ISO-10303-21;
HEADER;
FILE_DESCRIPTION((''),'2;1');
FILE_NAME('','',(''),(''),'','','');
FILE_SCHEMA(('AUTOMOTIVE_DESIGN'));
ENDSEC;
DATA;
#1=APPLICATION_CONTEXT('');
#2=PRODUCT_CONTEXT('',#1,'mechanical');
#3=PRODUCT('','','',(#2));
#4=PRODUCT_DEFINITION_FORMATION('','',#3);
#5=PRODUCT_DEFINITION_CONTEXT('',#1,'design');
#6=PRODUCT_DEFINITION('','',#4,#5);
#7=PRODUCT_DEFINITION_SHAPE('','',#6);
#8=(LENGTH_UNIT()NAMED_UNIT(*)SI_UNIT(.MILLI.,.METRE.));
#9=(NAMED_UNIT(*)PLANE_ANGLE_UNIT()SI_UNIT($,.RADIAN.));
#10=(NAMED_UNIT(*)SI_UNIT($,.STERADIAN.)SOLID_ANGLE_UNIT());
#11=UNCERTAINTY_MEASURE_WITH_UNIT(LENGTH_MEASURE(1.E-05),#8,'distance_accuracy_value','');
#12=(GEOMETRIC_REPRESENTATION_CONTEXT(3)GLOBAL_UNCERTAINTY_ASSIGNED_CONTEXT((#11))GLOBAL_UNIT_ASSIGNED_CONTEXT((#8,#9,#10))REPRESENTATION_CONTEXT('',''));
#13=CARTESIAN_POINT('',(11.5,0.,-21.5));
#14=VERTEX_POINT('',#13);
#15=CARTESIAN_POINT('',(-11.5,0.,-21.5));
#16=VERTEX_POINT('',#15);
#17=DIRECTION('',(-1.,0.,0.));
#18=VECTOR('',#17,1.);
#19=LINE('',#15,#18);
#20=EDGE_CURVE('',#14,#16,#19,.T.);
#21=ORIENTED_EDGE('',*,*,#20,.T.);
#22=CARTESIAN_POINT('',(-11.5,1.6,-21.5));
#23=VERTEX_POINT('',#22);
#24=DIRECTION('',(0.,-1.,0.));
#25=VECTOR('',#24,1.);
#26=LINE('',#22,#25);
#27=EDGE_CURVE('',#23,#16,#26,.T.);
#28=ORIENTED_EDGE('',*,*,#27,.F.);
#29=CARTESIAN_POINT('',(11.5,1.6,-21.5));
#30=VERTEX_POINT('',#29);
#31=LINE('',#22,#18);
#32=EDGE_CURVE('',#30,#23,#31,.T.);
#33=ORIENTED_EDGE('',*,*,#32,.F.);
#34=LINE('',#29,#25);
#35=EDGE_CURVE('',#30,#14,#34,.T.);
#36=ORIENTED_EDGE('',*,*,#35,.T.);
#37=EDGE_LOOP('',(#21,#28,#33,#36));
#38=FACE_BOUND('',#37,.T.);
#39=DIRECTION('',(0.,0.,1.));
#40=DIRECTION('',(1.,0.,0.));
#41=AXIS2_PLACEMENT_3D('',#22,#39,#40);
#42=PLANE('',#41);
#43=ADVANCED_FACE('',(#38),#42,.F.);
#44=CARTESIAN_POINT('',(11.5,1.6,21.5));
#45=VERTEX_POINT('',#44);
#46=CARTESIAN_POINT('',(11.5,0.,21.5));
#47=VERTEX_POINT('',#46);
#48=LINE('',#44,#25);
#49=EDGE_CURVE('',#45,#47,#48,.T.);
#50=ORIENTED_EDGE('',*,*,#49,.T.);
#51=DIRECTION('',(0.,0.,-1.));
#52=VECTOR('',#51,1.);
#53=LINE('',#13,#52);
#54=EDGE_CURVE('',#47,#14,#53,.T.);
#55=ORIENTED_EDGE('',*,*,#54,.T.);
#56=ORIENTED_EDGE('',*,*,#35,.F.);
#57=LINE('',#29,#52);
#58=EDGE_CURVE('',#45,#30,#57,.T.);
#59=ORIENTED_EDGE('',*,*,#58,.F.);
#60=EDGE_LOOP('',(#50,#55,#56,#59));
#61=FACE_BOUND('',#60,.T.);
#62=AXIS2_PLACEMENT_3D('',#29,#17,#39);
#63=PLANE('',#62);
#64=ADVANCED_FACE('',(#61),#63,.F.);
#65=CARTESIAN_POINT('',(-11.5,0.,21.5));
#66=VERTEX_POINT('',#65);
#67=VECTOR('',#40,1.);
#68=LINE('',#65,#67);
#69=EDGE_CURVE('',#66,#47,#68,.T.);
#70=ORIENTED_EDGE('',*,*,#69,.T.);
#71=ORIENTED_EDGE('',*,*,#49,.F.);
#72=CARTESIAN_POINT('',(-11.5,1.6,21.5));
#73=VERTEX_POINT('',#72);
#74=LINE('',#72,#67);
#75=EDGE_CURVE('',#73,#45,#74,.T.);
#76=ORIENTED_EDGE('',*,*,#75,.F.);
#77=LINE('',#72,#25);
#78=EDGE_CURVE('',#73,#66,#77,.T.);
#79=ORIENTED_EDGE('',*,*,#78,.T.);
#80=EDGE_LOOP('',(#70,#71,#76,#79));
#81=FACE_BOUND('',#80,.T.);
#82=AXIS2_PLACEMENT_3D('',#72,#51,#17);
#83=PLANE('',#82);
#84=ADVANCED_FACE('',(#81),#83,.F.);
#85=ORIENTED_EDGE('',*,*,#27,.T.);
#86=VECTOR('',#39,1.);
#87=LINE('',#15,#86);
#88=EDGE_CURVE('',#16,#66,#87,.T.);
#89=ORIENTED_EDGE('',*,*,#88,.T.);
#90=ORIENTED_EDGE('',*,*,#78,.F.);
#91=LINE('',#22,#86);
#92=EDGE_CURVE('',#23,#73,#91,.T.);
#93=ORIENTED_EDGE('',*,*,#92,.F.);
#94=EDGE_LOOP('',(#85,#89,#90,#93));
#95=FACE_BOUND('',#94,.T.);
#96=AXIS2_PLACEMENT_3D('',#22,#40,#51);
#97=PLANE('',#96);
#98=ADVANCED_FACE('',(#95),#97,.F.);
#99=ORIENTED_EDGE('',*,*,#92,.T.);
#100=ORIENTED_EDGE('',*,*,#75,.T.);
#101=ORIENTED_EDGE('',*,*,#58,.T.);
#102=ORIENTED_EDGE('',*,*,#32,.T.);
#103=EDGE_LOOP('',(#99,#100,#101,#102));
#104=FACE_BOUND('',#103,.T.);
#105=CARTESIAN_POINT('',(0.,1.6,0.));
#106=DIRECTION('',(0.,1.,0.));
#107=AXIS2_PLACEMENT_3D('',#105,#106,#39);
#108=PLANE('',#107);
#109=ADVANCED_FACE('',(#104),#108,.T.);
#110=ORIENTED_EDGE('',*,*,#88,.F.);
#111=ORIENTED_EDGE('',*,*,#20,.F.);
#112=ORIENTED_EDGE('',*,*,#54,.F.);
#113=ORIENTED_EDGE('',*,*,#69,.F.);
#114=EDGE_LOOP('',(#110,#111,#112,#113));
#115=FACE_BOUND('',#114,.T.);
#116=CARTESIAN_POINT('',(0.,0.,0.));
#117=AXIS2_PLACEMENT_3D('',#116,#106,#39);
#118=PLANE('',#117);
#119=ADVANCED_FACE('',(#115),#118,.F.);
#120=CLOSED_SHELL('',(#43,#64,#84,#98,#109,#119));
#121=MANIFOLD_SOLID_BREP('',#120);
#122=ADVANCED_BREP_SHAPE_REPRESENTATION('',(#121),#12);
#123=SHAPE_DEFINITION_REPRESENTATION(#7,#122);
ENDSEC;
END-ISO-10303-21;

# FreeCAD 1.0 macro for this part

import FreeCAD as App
import Part
import Sketcher
Q = App.Units.Quantity

doc = App.newDocument("Part")
body = doc.addObject("PartDesign::Body", "Body")

sketch1 = body.newObject("Sketcher::SketchObject", "Sketch")
sketch1.AttachmentSupport = (doc.getObject("XZ_Plane"), [""])
sketch1.MapMode = "FlatFace"
sketch1.addGeometry([
    Part.LineSegment(App.Vector(-11.5, -21.5, 0), App.Vector(-11.5, 21.5, 0)),
    Part.LineSegment(App.Vector(-11.5, 21.5, 0), App.Vector(11.5, 21.5, 0)),
    Part.LineSegment(App.Vector(11.5, 21.5, 0), App.Vector(11.5, -21.5, 0)),
    Part.LineSegment(App.Vector(11.5, -21.5, 0), App.Vector(-11.5, -21.5, 0)),
], False)
sketch1.addConstraint([
    Sketcher.Constraint("Coincident", 0, 2, 1, 1),
    Sketcher.Constraint("Coincident", 1, 2, 2, 1),
    Sketcher.Constraint("Coincident", 2, 2, 3, 1),
    Sketcher.Constraint("Coincident", 3, 2, 0, 1),
    Sketcher.Constraint("Vertical", 0),
    Sketcher.Constraint("Horizontal", 1),
    Sketcher.Constraint("Vertical", 2),
    Sketcher.Constraint("Horizontal", 3),
    Sketcher.Constraint("Symmetric", 0, 2, 2, 2, -1, 1),
    Sketcher.Constraint("DistanceX", 1, 1, 1, 2, Q("23 mm")),
    Sketcher.Constraint("DistanceY", 0, 1, 0, 2, Q("43 mm")),
])
pad1 = body.newObject("PartDesign::Pad", "Pad")
pad1.Profile = sketch1
pad1.Length = 1.6
pad1.Reversed = True

doc.recompute()
